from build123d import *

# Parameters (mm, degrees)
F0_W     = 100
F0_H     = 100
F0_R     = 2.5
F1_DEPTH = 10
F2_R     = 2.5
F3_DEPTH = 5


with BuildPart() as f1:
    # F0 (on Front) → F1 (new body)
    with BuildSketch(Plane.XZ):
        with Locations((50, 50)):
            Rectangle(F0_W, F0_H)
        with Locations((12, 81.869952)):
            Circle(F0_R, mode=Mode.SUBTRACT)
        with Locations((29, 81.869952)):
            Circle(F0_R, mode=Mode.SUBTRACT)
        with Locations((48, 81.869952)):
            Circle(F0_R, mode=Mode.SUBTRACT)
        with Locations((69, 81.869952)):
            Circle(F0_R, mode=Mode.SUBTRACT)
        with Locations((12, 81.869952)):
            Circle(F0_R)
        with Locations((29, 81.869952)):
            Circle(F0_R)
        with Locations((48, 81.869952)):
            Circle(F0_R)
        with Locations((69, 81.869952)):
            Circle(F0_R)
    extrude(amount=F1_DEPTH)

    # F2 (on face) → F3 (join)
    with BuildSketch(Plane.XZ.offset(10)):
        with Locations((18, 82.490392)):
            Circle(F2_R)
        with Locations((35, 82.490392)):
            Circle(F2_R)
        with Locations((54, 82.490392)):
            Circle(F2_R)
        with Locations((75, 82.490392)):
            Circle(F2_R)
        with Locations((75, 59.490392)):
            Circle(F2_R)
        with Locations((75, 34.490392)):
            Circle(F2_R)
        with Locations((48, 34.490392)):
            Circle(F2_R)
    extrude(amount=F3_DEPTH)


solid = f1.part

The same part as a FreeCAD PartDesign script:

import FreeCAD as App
import Part
import Sketcher
from FreeCAD import Vector


def add_polygon(sketch, points):
    """Adds a closed chain of lines whose ends are joined by coincident constraints."""
    first, n = sketch.GeometryCount, len(points)
    for a, b in zip(points, points[1:] + points[:1]):
        sketch.addGeometry(Part.LineSegment(App.Vector(*a, 0), App.Vector(*b, 0)), False)
    for i in range(n):
        sketch.addConstraint(Sketcher.Constraint("Coincident", first + i, 2, first + (i + 1) % n, 1))

doc = App.newDocument("Part")
body = doc.addObject("PartDesign::Body", "Body")

sketch1 = doc.addObject("Sketcher::SketchObject", "Sketch")
body.addObject(sketch1)
sketch1.AttachmentSupport = (doc.XZ_Plane, [""])
sketch1.MapMode = "FlatFace"
add_polygon(sketch1, [(0, 100), (0, 0), (100, 0), (100, 100)])
sketch1.addConstraint(Sketcher.Constraint("Vertical", 0))
sketch1.addConstraint(Sketcher.Constraint("Horizontal", 1))
sketch1.addConstraint(Sketcher.Constraint("Vertical", 2))
sketch1.addConstraint(Sketcher.Constraint("Horizontal", 3))
sketch1.addConstraint(Sketcher.Constraint("Coincident", 0, 2, -1, 1))
sketch1.addConstraint(Sketcher.Constraint("Equal", 3, 0))
sketch1.addConstraint(Sketcher.Constraint("DistanceX", 1, 1, 1, 2, 100.0))
pad1 = doc.addObject("PartDesign::Pad", "Pad")
body.addObject(pad1)
pad1.Profile = sketch1
pad1.Length = 10

sketch2 = doc.addObject("Sketcher::SketchObject", "Sketch001")
body.addObject(sketch2)
sketch2.AttachmentSupport = (doc.XZ_Plane, [""])
sketch2.MapMode = "FlatFace"
sketch2.AttachmentOffset = App.Placement(Vector(0, 0, 10), App.Rotation())
sketch2.addGeometry(Part.Circle(Vector(18, 82.490392, 0), Vector(0, 0, 1), 2.5), False)
sketch2.addGeometry(Part.Circle(Vector(35, 82.490392, 0), Vector(0, 0, 1), 2.5), False)
sketch2.addGeometry(Part.Circle(Vector(54, 82.490392, 0), Vector(0, 0, 1), 2.5), False)
sketch2.addGeometry(Part.Circle(Vector(75, 82.490392, 0), Vector(0, 0, 1), 2.5), False)
sketch2.addGeometry(Part.Circle(Vector(75, 59.490392, 0), Vector(0, 0, 1), 2.5), False)
sketch2.addGeometry(Part.Circle(Vector(75, 34.490392, 0), Vector(0, 0, 1), 2.5), False)
sketch2.addGeometry(Part.Circle(Vector(48, 34.490392, 0), Vector(0, 0, 1), 2.5), False)
sketch2.addConstraint(Sketcher.Constraint("Equal", 0, 1))
sketch2.addConstraint(Sketcher.Constraint("Equal", 1, 2))
sketch2.addConstraint(Sketcher.Constraint("Equal", 2, 3))
sketch2.addConstraint(Sketcher.Constraint("Equal", 3, 4))
sketch2.addConstraint(Sketcher.Constraint("Equal", 4, 5))
sketch2.addConstraint(Sketcher.Constraint("Equal", 5, 6))
sketch2.addConstraint(Sketcher.Constraint("Horizontal", 0, 3, 1, 3))
sketch2.addConstraint(Sketcher.Constraint("Horizontal", 1, 3, 2, 3))
sketch2.addConstraint(Sketcher.Constraint("Horizontal", 2, 3, 3, 3))
sketch2.addConstraint(Sketcher.Constraint("Horizontal", 5, 3, 6, 3))
sketch2.addConstraint(Sketcher.Constraint("Vertical", 3, 3, 4, 3))
sketch2.addConstraint(Sketcher.Constraint("Vertical", 4, 3, 5, 3))
sketch2.addConstraint(Sketcher.Constraint("Diameter", 0, 5.0))
sketch2.addConstraint(Sketcher.Constraint("DistanceX", -1, 1, 0, 3, 18.0))
sketch2.addConstraint(Sketcher.Constraint("DistanceX", -1, 1, 1, 3, 35.0))
sketch2.addConstraint(Sketcher.Constraint("DistanceX", -1, 1, 2, 3, 54.0))
sketch2.addConstraint(Sketcher.Constraint("DistanceX", -1, 1, 3, 3, 75.0))
sketch2.addConstraint(Sketcher.Constraint("DistanceX", -1, 1, 6, 3, 48.0))
sketch2.addConstraint(Sketcher.Constraint("DistanceY", 4, 3, 3, 3, 23.0))
sketch2.addConstraint(Sketcher.Constraint("DistanceY", 5, 3, 4, 3, 25.0))
sketch2.addConstraint(Sketcher.Constraint("DistanceY", -1, 1, 0, 3, 82.490392))
pad2 = doc.addObject("PartDesign::Pad", "Pad001")
body.addObject(pad2)
pad2.Profile = sketch2
pad2.Length = 5

doc.recompute()
